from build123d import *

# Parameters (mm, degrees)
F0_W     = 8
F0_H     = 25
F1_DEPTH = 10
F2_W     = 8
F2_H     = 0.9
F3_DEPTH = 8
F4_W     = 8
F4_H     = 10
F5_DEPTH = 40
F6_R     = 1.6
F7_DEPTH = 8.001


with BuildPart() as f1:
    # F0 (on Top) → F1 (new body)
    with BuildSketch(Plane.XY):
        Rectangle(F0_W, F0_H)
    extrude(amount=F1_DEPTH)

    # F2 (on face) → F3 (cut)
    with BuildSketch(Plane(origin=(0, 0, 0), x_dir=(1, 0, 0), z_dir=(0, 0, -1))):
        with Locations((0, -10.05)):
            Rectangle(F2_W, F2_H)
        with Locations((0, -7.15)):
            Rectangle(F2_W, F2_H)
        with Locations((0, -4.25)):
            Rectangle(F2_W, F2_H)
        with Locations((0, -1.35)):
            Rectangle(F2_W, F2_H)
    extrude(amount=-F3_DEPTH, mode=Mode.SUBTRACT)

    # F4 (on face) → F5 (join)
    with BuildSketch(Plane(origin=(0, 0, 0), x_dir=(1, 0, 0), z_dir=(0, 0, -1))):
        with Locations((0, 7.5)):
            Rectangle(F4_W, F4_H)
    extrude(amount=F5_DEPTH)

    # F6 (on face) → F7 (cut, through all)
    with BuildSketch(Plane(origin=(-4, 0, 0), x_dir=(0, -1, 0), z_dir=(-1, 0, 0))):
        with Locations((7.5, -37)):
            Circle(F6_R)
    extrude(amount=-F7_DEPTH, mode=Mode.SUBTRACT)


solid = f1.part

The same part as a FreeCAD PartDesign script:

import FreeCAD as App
import Part
import Sketcher

V = App.Vector

doc = App.newDocument("Part")
body = doc.addObject("PartDesign::Body", "Body")

# Sketch on XY plane
sketch1 = doc.addObject("Sketcher::SketchObject", "Sketch")
body.addObject(sketch1)
sketch1.AttachmentSupport = (doc.XY_Plane, [""])
sketch1.MapMode = "FlatFace"
sketch1.addGeometry(Part.LineSegment(V(-4, 12, 0), V(-4, -12, 0)), False)
sketch1.addGeometry(Part.LineSegment(V(-4, -12, 0), V(4, -12, 0)), False)
sketch1.addGeometry(Part.LineSegment(V(4, -12, 0), V(4, 12, 0)), False)
sketch1.addGeometry(Part.LineSegment(V(4, 12, 0), V(-4, 12, 0)), False)
sketch1.addConstraint(Sketcher.Constraint("Coincident", 0, 2, 1, 1))
sketch1.addConstraint(Sketcher.Constraint("Coincident", 1, 2, 2, 1))
sketch1.addConstraint(Sketcher.Constraint("Coincident", 2, 2, 3, 1))
sketch1.addConstraint(Sketcher.Constraint("Coincident", 3, 2, 0, 1))
sketch1.addConstraint(Sketcher.Constraint("Vertical", 0))
sketch1.addConstraint(Sketcher.Constraint("Horizontal", 1))
sketch1.addConstraint(Sketcher.Constraint("Vertical", 2))
sketch1.addConstraint(Sketcher.Constraint("Horizontal", 3))
sketch1.addConstraint(Sketcher.Constraint("Symmetric", 0, 2, 2, 2, -1, 1))
sketch1.addConstraint(Sketcher.Constraint("DistanceX", 1, 1, 1, 2, 8.0))
sketch1.addConstraint(Sketcher.Constraint("DistanceY", 0, 2, 0, 1, 25.0))
pad1 = doc.addObject("PartDesign::Pad", "Pad")
body.addObject(pad1)
pad1.Profile = sketch1
pad1.Length = 10

# Sketch on XY plane
sketch2 = doc.addObject("Sketcher::SketchObject", "Sketch001")
body.addObject(sketch2)
sketch2.AttachmentSupport = (doc.XY_Plane, [""])
sketch2.MapMode = "FlatFace"
sketch2.addGeometry(Part.LineSegment(V(-4, 9.6, 0), V(-4, 10.5, 0)), False)
sketch2.addGeometry(Part.LineSegment(V(-4, 10.5, 0), V(4, 10.5, 0)), False)
sketch2.addGeometry(Part.LineSegment(V(4, 10.5, 0), V(4, 9.6, 0)), False)
sketch2.addGeometry(Part.LineSegment(V(4, 9.6, 0), V(-4, 9.6, 0)), False)
sketch2.addGeometry(Part.LineSegment(V(-4, 6.7, 0), V(-4, 7.6, 0)), False)
sketch2.addGeometry(Part.LineSegment(V(-4, 7.6, 0), V(4, 7.6, 0)), False)
sketch2.addGeometry(Part.LineSegment(V(4, 7.6, 0), V(4, 6.7, 0)), False)
sketch2.addGeometry(Part.LineSegment(V(4, 6.7, 0), V(-4, 6.7, 0)), False)
sketch2.addGeometry(Part.LineSegment(V(-4, 3.8, 0), V(-4, 4.7, 0)), False)
sketch2.addGeometry(Part.LineSegment(V(-4, 4.7, 0), V(4, 4.7, 0)), False)
sketch2.addGeometry(Part.LineSegment(V(4, 4.7, 0), V(4, 3.8, 0)), False)
sketch2.addGeometry(Part.LineSegment(V(4, 3.8, 0), V(-4, 3.8, 0)), False)
sketch2.addGeometry(Part.LineSegment(V(-4, 0.9, 0), V(-4, 1.8, 0)), False)
sketch2.addGeometry(Part.LineSegment(V(-4, 1.8, 0), V(4, 1.8, 0)), False)
sketch2.addGeometry(Part.LineSegment(V(4, 1.8, 0), V(4, 0.9, 0)), False)
sketch2.addGeometry(Part.LineSegment(V(4, 0.9, 0), V(-4, 0.9, 0)), False)
sketch2.addConstraint(Sketcher.Constraint("Coincident", 0, 2, 1, 1))
sketch2.addConstraint(Sketcher.Constraint("Coincident", 1, 2, 2, 1))
sketch2.addConstraint(Sketcher.Constraint("Coincident", 2, 2, 3, 1))
sketch2.addConstraint(Sketcher.Constraint("Coincident", 3, 2, 0, 1))
sketch2.addConstraint(Sketcher.Constraint("Coincident", 4, 2, 5, 1))
sketch2.addConstraint(Sketcher.Constraint("Coincident", 5, 2, 6, 1))
sketch2.addConstraint(Sketcher.Constraint("Coincident", 6, 2, 7, 1))
sketch2.addConstraint(Sketcher.Constraint("Coincident", 7, 2, 4, 1))
sketch2.addConstraint(Sketcher.Constraint("Coincident", 8, 2, 9, 1))
sketch2.addConstraint(Sketcher.Constraint("Coincident", 9, 2, 10, 1))
sketch2.addConstraint(Sketcher.Constraint("Coincident", 10, 2, 11, 1))
sketch2.addConstraint(Sketcher.Constraint("Coincident", 11, 2, 8, 1))
sketch2.addConstraint(Sketcher.Constraint("Coincident", 12, 2, 13, 1))
sketch2.addConstraint(Sketcher.Constraint("Coincident", 13, 2, 14, 1))
sketch2.addConstraint(Sketcher.Constraint("Coincident", 14, 2, 15, 1))
sketch2.addConstraint(Sketcher.Constraint("Coincident", 15, 2, 12, 1))
sketch2.addConstraint(Sketcher.Constraint("Vertical", 0))
sketch2.addConstraint(Sketcher.Constraint("Horizontal", 1))
sketch2.addConstraint(Sketcher.Constraint("Vertical", 2))
sketch2.addConstraint(Sketcher.Constraint("Horizontal", 3))
sketch2.addConstraint(Sketcher.Constraint("Vertical", 4))
sketch2.addConstraint(Sketcher.Constraint("Horizontal", 5))
sketch2.addConstraint(Sketcher.Constraint("Vertical", 6))
sketch2.addConstraint(Sketcher.Constraint("Horizontal", 7))
sketch2.addConstraint(Sketcher.Constraint("Vertical", 8))
sketch2.addConstraint(Sketcher.Constraint("Horizontal", 9))
sketch2.addConstraint(Sketcher.Constraint("Vertical", 10))
sketch2.addConstraint(Sketcher.Constraint("Horizontal", 11))
sketch2.addConstraint(Sketcher.Constraint("Vertical", 12))
sketch2.addConstraint(Sketcher.Constraint("Horizontal", 13))
sketch2.addConstraint(Sketcher.Constraint("Vertical", 14))
sketch2.addConstraint(Sketcher.Constraint("Horizontal", 15))
sketch2.addConstraint(Sketcher.Constraint("Vertical", 3, 2, 4, 2))
sketch2.addConstraint(Sketcher.Constraint("Vertical", 2, 2, 5, 2))
sketch2.addConstraint(Sketcher.Constraint("Vertical", 7, 2, 8, 2))
sketch2.addConstraint(Sketcher.Constraint("Vertical", 6, 2, 9, 2))
sketch2.addConstraint(Sketcher.Constraint("Vertical", 11, 2, 12, 2))
sketch2.addConstraint(Sketcher.Constraint("Vertical", 10, 2, 13, 2))
sketch2.addConstraint(Sketcher.Constraint("Equal", 2, 4))
sketch2.addConstraint(Sketcher.Constraint("Equal", 6, 8))
sketch2.addConstraint(Sketcher.Constraint("Equal", 10, 12))
sketch2.addConstraint(Sketcher.Constraint("DistanceX", 1, 1, 1, 2, 8.0))
sketch2.addConstraint(Sketcher.Constraint("DistanceY", 0, 1, 0, 2, 0.9))
sketch2.addConstraint(Sketcher.Constraint("DistanceX", 0, 2, -1, 1, 4.0))
sketch2.addConstraint(Sketcher.Constraint("DistanceY", 4, 2, 3, 2, 2.0))
sketch2.addConstraint(Sketcher.Constraint("DistanceY", 8, 2, 7, 2, 2.0))
sketch2.addConstraint(Sketcher.Constraint("DistanceY", 12, 2, 11, 2, 2.0))
sketch2.addConstraint(Sketcher.Constraint("DistanceY", -1, 1, 0, 2, 10.5))
pocket1 = doc.addObject("PartDesign::Pocket", "Pocket")
body.addObject(pocket1)
pocket1.Profile = sketch2
pocket1.Length = 8
pocket1.Reversed = True

# Sketch on XY plane
sketch3 = doc.addObject("Sketcher::SketchObject", "Sketch002")
body.addObject(sketch3)
sketch3.AttachmentSupport = (doc.XY_Plane, [""])
sketch3.MapMode = "FlatFace"
sketch3.addGeometry(Part.LineSegment(V(-4, -12, 0), V(-4, -2, 0)), False)
sketch3.addGeometry(Part.LineSegment(V(-4, -2, 0), V(4, -2, 0)), False)
sketch3.addGeometry(Part.LineSegment(V(4, -2, 0), V(4, -12, 0)), False)
sketch3.addGeometry(Part.LineSegment(V(4, -12, 0), V(-4, -12, 0)), False)
sketch3.addConstraint(Sketcher.Constraint("Coincident", 0, 2, 1, 1))
sketch3.addConstraint(Sketcher.Constraint("Coincident", 1, 2, 2, 1))
sketch3.addConstraint(Sketcher.Constraint("Coincident", 2, 2, 3, 1))
sketch3.addConstraint(Sketcher.Constraint("Coincident", 3, 2, 0, 1))
sketch3.addConstraint(Sketcher.Constraint("Vertical", 0))
sketch3.addConstraint(Sketcher.Constraint("Horizontal", 1))
sketch3.addConstraint(Sketcher.Constraint("Vertical", 2))
sketch3.addConstraint(Sketcher.Constraint("Horizontal", 3))
sketch3.addConstraint(Sketcher.Constraint("DistanceX", 1, 1, 1, 2, 8.0))
sketch3.addConstraint(Sketcher.Constraint("DistanceY", 0, 1, 0, 2, 10.0))
sketch3.addConstraint(Sketcher.Constraint("DistanceX", 0, 2, -1, 1, 4.0))
sketch3.addConstraint(Sketcher.Constraint("DistanceY", 0, 2, -1, 1, 2.5))
pad2 = doc.addObject("PartDesign::Pad", "Pad001")
body.addObject(pad2)
pad2.Profile = sketch3
pad2.Length = 40
pad2.Reversed = True

# Sketch on YZ plane
sketch4 = doc.addObject("Sketcher::SketchObject", "Sketch003")
body.addObject(sketch4)
sketch4.AttachmentSupport = (doc.YZ_Plane, [""])
sketch4.MapMode = "FlatFace"
sketch4.AttachmentOffset = App.Placement(V(0, 0, -4), App.Rotation())
sketch4.addGeometry(Part.Circle(V(-7.5, -37, 0), V(0, 0, 1), 1.6), False)
sketch4.addConstraint(Sketcher.Constraint("Diameter", 0, 3.2))
sketch4.addConstraint(Sketcher.Constraint("DistanceY", 0, 3, -1, 1, 37.0))
sketch4.addConstraint(Sketcher.Constraint("DistanceX", 0, 3, -1, 1, 7.5))
pocket2 = doc.addObject("PartDesign::Pocket", "Pocket001")
body.addObject(pocket2)
pocket2.Profile = sketch4
pocket2.Type = "ThroughAll"
pocket2.Reversed = True

doc.recompute()
